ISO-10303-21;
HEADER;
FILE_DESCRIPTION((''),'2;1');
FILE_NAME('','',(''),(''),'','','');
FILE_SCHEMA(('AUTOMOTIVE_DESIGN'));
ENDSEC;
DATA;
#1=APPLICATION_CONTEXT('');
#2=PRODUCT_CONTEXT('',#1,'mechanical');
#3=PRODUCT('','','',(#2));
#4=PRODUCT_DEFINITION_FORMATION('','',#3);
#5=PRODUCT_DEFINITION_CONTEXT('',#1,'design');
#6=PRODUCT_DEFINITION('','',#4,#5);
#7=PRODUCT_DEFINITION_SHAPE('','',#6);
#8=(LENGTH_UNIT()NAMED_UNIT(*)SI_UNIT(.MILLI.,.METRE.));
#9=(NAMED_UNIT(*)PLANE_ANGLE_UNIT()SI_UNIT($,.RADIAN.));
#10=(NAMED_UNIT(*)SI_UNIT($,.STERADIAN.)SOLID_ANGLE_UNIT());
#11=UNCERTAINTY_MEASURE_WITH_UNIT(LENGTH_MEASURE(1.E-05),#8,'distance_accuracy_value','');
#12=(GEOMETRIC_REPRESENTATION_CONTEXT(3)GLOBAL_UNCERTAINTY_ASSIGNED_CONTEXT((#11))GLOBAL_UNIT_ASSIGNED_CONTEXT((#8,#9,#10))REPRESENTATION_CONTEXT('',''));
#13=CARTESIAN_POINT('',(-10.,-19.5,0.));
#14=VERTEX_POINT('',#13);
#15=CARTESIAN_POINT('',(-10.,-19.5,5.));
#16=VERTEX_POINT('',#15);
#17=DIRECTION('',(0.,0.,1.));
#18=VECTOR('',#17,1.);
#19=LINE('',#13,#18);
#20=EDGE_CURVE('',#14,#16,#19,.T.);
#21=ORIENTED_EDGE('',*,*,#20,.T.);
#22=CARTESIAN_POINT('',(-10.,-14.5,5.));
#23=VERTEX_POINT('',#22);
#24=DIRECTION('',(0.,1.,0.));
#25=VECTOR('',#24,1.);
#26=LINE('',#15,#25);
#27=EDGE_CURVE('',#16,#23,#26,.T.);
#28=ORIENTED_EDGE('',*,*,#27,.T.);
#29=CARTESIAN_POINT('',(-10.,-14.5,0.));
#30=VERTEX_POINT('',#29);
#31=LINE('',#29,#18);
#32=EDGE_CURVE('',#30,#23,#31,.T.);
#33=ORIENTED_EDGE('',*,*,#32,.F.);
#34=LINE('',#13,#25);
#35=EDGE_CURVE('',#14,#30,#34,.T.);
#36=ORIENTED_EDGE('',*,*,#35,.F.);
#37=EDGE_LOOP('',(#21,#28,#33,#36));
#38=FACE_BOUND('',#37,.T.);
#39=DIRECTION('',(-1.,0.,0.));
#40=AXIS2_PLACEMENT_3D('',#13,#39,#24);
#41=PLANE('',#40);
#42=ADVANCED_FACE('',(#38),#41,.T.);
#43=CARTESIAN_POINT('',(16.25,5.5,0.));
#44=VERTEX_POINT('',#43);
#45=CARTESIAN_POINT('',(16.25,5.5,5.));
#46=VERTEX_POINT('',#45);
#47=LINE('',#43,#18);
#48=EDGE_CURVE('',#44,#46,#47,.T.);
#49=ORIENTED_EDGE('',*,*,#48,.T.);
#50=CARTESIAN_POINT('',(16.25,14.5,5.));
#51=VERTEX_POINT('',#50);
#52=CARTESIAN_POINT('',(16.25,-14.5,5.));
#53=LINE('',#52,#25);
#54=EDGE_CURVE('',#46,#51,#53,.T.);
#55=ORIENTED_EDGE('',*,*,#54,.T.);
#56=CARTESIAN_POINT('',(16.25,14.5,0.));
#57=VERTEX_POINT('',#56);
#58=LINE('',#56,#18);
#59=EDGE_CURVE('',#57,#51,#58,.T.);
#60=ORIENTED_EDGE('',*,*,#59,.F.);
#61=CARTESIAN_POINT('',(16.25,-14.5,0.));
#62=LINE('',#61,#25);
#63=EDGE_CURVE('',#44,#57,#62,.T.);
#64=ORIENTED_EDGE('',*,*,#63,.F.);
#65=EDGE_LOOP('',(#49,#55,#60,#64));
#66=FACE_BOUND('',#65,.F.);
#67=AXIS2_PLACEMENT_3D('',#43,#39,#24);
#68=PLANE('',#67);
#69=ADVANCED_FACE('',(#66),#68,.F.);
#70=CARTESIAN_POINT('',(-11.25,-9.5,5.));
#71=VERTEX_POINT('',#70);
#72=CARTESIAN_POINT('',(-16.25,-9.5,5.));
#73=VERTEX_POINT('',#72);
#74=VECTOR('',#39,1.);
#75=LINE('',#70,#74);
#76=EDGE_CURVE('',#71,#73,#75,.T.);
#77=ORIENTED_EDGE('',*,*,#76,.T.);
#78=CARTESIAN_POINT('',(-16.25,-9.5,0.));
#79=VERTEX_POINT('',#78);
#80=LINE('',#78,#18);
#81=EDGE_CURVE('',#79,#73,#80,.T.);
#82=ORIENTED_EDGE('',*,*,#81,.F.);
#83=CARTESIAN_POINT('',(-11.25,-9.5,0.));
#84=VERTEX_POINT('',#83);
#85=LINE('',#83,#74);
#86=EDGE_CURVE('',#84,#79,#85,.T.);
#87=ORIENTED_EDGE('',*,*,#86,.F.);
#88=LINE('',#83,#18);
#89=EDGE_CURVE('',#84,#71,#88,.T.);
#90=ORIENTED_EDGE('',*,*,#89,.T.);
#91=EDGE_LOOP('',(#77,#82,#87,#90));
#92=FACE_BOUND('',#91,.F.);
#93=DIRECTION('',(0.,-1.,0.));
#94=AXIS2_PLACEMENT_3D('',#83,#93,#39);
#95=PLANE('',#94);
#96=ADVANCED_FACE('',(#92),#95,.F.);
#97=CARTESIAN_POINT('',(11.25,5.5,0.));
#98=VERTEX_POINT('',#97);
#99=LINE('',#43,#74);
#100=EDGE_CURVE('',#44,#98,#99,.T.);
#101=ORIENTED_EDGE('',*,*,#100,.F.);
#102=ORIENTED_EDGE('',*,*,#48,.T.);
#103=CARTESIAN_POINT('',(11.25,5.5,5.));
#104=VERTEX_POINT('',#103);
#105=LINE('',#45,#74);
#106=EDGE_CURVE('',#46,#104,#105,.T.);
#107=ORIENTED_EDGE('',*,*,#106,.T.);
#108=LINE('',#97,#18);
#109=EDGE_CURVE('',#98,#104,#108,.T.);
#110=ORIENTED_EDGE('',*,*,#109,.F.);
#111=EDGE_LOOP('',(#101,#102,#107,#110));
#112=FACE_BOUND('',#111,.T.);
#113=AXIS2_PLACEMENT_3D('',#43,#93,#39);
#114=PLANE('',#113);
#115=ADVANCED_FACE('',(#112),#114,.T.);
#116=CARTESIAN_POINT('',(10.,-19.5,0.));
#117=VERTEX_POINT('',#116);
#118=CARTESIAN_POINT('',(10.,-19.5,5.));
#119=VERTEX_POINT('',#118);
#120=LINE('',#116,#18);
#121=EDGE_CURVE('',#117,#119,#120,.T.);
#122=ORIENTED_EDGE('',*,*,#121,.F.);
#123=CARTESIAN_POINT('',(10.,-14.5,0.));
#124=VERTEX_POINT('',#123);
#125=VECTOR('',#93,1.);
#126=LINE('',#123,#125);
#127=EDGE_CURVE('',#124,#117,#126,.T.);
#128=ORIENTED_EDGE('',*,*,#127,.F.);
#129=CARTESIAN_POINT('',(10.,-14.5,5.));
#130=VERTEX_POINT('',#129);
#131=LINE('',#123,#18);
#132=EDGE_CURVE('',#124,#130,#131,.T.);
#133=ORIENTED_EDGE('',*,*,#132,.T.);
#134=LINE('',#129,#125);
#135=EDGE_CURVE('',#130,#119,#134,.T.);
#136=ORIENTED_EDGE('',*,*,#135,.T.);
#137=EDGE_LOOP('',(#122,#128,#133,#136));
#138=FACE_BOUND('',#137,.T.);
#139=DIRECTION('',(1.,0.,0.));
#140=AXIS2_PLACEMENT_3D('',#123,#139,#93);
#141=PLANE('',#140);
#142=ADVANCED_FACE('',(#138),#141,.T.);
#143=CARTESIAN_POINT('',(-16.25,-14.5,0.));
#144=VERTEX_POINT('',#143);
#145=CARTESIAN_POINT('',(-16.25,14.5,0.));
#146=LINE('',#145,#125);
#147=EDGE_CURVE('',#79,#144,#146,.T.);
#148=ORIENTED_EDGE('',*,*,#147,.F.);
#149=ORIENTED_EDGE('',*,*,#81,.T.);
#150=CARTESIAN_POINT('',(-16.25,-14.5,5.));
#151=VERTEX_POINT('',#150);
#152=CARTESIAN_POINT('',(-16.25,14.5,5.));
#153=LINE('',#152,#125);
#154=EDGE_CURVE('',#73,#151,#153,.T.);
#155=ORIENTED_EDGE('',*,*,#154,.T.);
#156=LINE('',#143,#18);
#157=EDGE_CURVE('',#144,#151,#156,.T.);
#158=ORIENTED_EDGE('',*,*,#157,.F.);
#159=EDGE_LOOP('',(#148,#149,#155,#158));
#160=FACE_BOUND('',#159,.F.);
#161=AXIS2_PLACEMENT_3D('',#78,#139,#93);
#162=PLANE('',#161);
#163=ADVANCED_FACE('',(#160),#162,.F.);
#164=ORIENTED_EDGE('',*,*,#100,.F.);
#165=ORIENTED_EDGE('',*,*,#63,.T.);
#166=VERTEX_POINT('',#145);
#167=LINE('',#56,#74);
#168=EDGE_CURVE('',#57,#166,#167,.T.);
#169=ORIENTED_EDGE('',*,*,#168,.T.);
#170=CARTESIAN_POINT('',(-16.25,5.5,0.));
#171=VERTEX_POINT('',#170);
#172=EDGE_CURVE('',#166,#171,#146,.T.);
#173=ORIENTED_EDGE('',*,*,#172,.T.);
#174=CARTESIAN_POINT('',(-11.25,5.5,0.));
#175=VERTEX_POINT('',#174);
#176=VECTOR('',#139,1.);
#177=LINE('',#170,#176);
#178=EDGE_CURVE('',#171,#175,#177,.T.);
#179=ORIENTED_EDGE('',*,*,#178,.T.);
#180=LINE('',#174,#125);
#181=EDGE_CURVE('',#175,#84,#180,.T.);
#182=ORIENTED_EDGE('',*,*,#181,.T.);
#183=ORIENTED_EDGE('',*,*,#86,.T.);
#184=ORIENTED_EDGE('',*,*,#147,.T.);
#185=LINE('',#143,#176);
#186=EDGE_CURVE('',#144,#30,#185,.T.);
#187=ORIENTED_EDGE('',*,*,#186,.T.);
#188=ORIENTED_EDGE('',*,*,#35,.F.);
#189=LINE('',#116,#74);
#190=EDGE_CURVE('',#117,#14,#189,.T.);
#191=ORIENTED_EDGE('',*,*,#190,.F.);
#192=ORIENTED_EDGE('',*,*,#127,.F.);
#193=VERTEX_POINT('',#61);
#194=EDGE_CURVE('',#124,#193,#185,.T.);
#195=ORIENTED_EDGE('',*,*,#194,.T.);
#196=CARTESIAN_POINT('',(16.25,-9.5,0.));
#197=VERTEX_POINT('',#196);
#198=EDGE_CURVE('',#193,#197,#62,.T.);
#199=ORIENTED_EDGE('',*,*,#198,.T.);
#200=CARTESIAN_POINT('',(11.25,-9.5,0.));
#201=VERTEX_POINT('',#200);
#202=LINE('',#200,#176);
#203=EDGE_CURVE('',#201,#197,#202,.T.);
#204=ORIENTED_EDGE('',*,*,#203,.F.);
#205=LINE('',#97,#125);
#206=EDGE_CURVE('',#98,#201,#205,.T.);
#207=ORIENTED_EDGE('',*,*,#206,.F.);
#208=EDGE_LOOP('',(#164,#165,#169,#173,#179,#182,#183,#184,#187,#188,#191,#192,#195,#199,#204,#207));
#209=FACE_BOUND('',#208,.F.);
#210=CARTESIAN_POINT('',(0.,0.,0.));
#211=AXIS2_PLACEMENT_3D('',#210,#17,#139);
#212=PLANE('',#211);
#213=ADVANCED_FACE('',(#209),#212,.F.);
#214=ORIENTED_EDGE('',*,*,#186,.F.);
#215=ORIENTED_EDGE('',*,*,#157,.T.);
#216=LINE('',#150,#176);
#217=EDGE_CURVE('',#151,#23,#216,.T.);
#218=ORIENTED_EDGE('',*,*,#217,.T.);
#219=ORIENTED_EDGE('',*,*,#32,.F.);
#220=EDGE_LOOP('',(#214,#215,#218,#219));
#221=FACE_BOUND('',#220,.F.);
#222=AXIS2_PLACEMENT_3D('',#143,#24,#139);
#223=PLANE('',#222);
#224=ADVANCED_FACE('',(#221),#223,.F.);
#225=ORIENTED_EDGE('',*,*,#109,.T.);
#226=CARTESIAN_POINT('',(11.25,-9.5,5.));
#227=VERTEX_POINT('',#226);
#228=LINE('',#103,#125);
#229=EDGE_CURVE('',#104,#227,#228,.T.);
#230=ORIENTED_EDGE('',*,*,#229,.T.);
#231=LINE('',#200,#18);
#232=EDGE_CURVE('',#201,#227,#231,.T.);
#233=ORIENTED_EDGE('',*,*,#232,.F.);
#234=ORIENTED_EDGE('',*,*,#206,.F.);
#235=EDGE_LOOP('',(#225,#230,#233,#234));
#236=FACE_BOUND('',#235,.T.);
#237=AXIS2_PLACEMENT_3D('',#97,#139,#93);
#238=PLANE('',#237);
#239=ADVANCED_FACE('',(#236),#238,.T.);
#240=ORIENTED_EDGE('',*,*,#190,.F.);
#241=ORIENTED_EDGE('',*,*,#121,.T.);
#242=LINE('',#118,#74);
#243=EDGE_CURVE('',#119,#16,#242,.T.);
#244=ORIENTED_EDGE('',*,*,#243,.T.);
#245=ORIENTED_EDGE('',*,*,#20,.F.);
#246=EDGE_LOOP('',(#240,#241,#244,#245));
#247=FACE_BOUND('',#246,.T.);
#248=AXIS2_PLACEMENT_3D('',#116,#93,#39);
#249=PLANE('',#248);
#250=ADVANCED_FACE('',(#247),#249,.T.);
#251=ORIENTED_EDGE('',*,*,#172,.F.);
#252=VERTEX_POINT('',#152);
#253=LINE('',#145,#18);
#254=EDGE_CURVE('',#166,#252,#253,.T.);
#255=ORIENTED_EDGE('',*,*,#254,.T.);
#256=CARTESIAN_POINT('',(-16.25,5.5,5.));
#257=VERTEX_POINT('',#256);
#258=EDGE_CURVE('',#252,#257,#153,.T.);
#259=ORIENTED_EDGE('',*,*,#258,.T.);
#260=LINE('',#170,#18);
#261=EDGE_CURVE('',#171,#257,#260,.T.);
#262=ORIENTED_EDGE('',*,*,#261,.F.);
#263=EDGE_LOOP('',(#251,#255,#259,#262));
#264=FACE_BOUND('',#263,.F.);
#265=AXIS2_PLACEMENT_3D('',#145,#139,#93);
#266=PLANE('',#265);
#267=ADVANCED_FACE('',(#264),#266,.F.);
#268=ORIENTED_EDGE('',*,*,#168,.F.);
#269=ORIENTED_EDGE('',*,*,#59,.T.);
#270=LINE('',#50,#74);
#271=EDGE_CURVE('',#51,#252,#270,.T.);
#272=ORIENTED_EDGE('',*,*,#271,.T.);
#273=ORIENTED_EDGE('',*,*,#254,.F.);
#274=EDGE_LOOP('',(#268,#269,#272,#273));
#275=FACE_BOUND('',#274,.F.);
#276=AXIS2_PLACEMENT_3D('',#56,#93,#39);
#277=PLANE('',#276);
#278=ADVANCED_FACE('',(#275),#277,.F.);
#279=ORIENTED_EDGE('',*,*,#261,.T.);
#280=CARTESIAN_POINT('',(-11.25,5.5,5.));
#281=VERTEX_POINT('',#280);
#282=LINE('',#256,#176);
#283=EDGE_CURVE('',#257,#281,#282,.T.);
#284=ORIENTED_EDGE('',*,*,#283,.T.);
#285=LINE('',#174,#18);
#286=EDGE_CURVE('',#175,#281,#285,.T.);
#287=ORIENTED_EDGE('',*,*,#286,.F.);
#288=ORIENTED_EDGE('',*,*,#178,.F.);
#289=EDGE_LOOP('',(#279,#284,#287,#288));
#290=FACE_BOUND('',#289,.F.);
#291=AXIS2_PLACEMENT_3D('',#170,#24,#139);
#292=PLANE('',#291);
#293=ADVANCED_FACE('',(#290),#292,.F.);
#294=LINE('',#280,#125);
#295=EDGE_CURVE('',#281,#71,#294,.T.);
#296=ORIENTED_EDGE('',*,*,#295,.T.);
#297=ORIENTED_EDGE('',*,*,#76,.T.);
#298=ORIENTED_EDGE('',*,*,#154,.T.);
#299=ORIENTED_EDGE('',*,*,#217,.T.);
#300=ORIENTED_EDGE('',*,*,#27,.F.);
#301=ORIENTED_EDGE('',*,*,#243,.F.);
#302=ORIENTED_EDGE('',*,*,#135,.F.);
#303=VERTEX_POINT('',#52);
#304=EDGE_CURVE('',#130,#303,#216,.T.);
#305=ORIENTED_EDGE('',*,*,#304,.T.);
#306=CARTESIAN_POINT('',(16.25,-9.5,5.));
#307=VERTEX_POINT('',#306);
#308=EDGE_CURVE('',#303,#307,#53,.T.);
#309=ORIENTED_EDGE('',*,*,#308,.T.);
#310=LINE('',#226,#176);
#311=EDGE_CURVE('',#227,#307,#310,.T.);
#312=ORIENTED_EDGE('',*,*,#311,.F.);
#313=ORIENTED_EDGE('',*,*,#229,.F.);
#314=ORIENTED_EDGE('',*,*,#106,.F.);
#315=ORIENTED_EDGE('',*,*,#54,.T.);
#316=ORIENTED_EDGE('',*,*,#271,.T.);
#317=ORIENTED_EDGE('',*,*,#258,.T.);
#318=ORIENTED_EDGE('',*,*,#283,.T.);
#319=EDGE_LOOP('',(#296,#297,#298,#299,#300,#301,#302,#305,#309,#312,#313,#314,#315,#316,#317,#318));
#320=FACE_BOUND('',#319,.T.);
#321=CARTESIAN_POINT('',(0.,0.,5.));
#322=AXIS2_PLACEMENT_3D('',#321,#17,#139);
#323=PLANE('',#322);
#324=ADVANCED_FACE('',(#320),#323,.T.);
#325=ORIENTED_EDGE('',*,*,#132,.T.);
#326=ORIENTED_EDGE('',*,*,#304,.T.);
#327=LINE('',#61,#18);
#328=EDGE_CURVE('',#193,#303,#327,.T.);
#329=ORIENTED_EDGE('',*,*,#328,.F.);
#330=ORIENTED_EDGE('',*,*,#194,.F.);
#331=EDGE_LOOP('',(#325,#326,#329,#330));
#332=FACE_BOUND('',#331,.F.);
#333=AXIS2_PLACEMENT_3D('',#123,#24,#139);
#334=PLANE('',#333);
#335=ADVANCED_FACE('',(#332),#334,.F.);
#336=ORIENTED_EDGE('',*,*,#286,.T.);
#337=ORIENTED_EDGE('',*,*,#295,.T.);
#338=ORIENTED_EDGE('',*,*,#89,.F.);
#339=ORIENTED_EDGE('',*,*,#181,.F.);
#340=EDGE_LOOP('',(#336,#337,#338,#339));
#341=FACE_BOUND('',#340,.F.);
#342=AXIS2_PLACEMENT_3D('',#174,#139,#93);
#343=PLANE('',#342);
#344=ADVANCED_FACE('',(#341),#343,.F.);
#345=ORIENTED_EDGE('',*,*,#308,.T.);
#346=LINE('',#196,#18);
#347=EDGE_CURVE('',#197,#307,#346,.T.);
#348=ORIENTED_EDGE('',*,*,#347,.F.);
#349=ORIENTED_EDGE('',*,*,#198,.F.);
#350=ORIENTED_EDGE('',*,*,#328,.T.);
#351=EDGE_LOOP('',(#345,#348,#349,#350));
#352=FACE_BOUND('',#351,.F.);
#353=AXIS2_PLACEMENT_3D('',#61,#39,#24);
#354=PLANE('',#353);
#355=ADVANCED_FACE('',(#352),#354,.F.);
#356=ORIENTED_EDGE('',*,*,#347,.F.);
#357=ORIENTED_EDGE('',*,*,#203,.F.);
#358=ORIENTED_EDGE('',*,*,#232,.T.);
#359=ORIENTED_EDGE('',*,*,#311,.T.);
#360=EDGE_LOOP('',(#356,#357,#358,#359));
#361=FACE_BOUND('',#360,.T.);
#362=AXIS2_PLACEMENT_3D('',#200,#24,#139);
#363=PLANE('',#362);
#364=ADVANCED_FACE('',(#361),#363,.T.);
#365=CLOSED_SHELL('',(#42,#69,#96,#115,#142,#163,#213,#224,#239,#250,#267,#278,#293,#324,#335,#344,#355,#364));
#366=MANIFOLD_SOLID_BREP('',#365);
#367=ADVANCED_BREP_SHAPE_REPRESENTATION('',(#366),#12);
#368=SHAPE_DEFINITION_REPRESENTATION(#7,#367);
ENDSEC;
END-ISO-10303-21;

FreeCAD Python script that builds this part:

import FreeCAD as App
import Part
import Sketcher

V = App.Vector


def add_polygon(sketch, points):
    """Adds a closed chain of lines whose ends are joined by coincident constraints."""
    first, n = sketch.GeometryCount, len(points)
    for a, b in zip(points, points[1:] + points[:1]):
        sketch.addGeometry(Part.LineSegment(App.Vector(*a, 0), App.Vector(*b, 0)), False)
    for i in range(n):
        sketch.addConstraint(Sketcher.Constraint("Coincident", first + i, 2, first + (i + 1) % n, 1))

doc = App.newDocument("Part")
params = doc.addObject("Spreadsheet::Sheet", "Params")
for row, (alias, value) in enumerate([
    ("sketch1_width", "20 mm"),
    ("sketch1_width2", "5 mm"),
    ("sketch1_height", "15 mm"),
    ("sketch1_height2", "9 mm"),
    ("sketch1_width3", "32.5 mm"),
    ("pad1_length", "5 mm"),
], start=1):
    params.set(f"A{row}", alias)
    params.set(f"B{row}", "=" + value)
    params.setAlias(f"B{row}", alias)

body = doc.addObject("PartDesign::Body", "Body")

# Sketch on XY plane
sketch1 = body.newObject("Sketcher::SketchObject", "Sketch")
sketch1.AttachmentSupport = (doc.getObject("XY_Plane"), [""])
sketch1.MapMode = "FlatFace"
add_polygon(sketch1, [(-16, -10), (-16, -14), (-10, -14), (-10, -20), (10, -20), (10, -14), (16, -14), (16, -10), (11, -10), (11, 6), (16, 6), (16, 14), (-16, 14), (-16, 6), (-11, 6), (-11, -10)])  # lines 0-15
sketch1.addConstraint(Sketcher.Constraint("Vertical", 0))
sketch1.addConstraint(Sketcher.Constraint("Horizontal", 1))
sketch1.addConstraint(Sketcher.Constraint("Vertical", 2))
sketch1.addConstraint(Sketcher.Constraint("Horizontal", 3))
sketch1.addConstraint(Sketcher.Constraint("Vertical", 4))
sketch1.addConstraint(Sketcher.Constraint("Horizontal", 5))
sketch1.addConstraint(Sketcher.Constraint("Vertical", 6))
sketch1.addConstraint(Sketcher.Constraint("Horizontal", 7))
sketch1.addConstraint(Sketcher.Constraint("Vertical", 8))
sketch1.addConstraint(Sketcher.Constraint("Horizontal", 9))
sketch1.addConstraint(Sketcher.Constraint("Vertical", 10))
sketch1.addConstraint(Sketcher.Constraint("Horizontal", 11))
sketch1.addConstraint(Sketcher.Constraint("Vertical", 12))
sketch1.addConstraint(Sketcher.Constraint("Horizontal", 13))
sketch1.addConstraint(Sketcher.Constraint("Vertical", 14))
sketch1.addConstraint(Sketcher.Constraint("Horizontal", 15))
sketch1.addConstraint(Sketcher.Constraint("Symmetric", 0, 2, 10, 2, -1, 1))
sketch1.addConstraint(Sketcher.Constraint("Symmetric", 5, 2, 11, 2, -1, 1))
sketch1.addConstraint(Sketcher.Constraint("Symmetric", 9, 2, 12, 2, -2))
sketch1.addConstraint(Sketcher.Constraint("Symmetric", 7, 2, 14, 2, -2))
sketch1.addConstraint(Sketcher.Constraint("Equal", 1, 5))
sketch1.addConstraint(Sketcher.Constraint("Equal", 15, 0))
sketch1.addConstraint(Sketcher.Constraint("Equal", 0, 2))
sketch1.addConstraint(Sketcher.Constraint("DistanceX", 3, 1, 3, 2, 20.0))
sketch1.addConstraint(Sketcher.Constraint("DistanceX", 7, 2, 7, 1, 5.0))
sketch1.addConstraint(Sketcher.Constraint("DistanceY", 8, 1, 8, 2, 15.0))
sketch1.addConstraint(Sketcher.Constraint("DistanceY", 10, 1, 10, 2, 9.0))
sketch1.addConstraint(Sketcher.Constraint("DistanceX", 11, 2, 11, 1, 32.5))
sketch1.setExpression("Constraints[39]", "Params.sketch1_width")
sketch1.setExpression("Constraints[40]", "Params.sketch1_width2")
sketch1.setExpression("Constraints[41]", "Params.sketch1_height")
sketch1.setExpression("Constraints[42]", "Params.sketch1_height2")
sketch1.setExpression("Constraints[43]", "Params.sketch1_width3")
pad1 = body.newObject("PartDesign::Pad", "Pad")
pad1.Profile = sketch1
pad1.setExpression("Length", "Params.pad1_length")

doc.recompute()
